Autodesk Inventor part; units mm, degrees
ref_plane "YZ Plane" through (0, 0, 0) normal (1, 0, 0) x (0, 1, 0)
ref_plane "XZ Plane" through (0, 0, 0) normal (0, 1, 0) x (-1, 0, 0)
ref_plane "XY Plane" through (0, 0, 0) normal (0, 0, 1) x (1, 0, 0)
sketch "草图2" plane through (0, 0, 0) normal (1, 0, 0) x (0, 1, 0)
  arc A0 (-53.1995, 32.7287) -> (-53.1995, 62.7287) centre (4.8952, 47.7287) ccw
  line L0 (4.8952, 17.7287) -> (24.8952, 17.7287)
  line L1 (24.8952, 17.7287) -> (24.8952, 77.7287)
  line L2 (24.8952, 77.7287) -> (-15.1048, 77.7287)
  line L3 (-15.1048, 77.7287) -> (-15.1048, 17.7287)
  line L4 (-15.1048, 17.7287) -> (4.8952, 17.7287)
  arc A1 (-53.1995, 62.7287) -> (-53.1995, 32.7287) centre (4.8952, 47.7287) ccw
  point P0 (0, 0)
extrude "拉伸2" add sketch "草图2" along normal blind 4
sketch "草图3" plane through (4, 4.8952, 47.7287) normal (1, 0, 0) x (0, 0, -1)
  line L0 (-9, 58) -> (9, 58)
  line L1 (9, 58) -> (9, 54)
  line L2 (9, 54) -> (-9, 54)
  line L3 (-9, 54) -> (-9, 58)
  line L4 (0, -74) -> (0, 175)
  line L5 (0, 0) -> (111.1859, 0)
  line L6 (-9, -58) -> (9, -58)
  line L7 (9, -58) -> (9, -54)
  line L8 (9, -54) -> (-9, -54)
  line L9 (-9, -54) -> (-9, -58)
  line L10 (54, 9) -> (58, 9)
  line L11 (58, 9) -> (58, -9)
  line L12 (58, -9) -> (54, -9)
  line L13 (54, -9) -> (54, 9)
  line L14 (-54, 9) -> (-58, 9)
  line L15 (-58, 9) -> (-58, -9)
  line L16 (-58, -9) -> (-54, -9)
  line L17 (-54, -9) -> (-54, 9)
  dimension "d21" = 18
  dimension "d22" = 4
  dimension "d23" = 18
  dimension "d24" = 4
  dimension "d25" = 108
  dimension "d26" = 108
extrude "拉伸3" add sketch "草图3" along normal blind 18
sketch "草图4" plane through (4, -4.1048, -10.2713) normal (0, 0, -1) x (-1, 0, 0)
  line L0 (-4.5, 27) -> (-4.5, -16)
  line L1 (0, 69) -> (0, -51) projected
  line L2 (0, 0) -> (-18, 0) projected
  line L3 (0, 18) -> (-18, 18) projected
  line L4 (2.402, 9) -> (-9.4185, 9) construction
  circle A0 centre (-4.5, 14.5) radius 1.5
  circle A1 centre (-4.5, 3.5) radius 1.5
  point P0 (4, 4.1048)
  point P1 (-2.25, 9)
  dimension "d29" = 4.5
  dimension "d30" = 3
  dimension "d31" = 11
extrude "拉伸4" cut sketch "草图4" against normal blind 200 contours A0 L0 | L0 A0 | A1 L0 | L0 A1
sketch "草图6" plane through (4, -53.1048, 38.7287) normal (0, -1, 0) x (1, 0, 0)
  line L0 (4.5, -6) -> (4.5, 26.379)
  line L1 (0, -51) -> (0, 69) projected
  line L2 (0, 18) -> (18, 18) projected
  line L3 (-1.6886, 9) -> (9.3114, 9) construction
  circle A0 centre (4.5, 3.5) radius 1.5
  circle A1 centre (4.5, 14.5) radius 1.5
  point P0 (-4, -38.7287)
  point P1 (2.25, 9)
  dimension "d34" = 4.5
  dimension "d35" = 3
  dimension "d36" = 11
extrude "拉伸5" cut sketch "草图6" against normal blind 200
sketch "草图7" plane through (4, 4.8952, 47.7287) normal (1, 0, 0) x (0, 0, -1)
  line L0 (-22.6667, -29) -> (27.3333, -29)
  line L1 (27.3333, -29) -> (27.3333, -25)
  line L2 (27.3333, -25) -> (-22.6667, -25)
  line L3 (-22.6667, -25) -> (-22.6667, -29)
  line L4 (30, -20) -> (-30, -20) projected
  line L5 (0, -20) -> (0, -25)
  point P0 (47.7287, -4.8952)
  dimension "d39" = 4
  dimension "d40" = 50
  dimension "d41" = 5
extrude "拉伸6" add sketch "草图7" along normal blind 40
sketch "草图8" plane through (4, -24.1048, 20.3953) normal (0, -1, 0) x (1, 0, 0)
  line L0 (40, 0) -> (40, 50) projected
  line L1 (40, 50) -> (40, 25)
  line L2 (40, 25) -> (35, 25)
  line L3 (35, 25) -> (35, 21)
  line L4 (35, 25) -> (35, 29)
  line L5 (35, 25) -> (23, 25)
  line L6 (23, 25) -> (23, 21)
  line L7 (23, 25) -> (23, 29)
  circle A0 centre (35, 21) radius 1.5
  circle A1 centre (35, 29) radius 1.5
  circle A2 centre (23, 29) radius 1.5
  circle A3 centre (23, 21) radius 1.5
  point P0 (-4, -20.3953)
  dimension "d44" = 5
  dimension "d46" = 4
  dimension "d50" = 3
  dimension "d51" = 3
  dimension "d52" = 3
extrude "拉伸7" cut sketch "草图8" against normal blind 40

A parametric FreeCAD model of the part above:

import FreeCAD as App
import Part
import Sketcher

V = App.Vector


def add_polygon(sketch, points):
    """Adds a closed chain of lines whose ends are joined by coincident constraints."""
    first, n = sketch.GeometryCount, len(points)
    for a, b in zip(points, points[1:] + points[:1]):
        sketch.addGeometry(Part.LineSegment(App.Vector(*a, 0), App.Vector(*b, 0)), False)
    for i in range(n):
        sketch.addConstraint(Sketcher.Constraint("Coincident", first + i, 2, first + (i + 1) % n, 1))

doc = App.newDocument("Part")
body = doc.addObject("PartDesign::Body", "Body")

# Sketch on YZ plane
sketch1 = body.newObject("Sketcher::SketchObject", "Sketch")
sketch1.AttachmentSupport = (doc.getObject("YZ_Plane"), [""])
sketch1.MapMode = "FlatFace"
sketch1.addGeometry(Part.Circle(V(5, 48, 0), V(0, 0, 1), 60), False)  # 0
add_polygon(sketch1, [(25, 18), (-15, 18), (-15, 78), (25, 78)])  # lines 1-4
sketch1.addConstraint([
    Sketcher.Constraint("Horizontal", 1),
    Sketcher.Constraint("Vertical", 2),
    Sketcher.Constraint("Horizontal", 3),
    Sketcher.Constraint("Vertical", 4),
    Sketcher.Constraint("Diameter", 0, 120.0),
    Sketcher.Constraint("DistanceX", 1, 2, 1, 1, 40.0),
    Sketcher.Constraint("DistanceY", 2, 1, 2, 2, 60.0),
    Sketcher.Constraint("DistanceX", 1, 2, 0, 3, 20.0),
    Sketcher.Constraint("DistanceY", 1, 2, 0, 3, 30.0),
    Sketcher.Constraint("DistanceX", -1, 1, 0, 3, 4.8952),
    Sketcher.Constraint("DistanceY", -1, 1, 0, 3, 47.7287),
])
pad1 = body.newObject("PartDesign::Pad", "Pad")
pad1.Profile = sketch1
pad1.Length = 4

# Sketch on YZ plane
sketch2 = body.newObject("Sketcher::SketchObject", "Sketch001")
sketch2.AttachmentSupport = (doc.getObject("YZ_Plane"), [""])
sketch2.MapMode = "FlatFace"
sketch2.AttachmentOffset = App.Placement(V(0, 0, 4), App.Rotation())
add_polygon(sketch2, [(13.9, -6.3), (-4.1, -6.3), (-4.1, -10.3), (13.9, -10.3)])  # lines 0-3
add_polygon(sketch2, [(-49.1, 38.7), (-49.1, 56.7), (-53.1, 56.7), (-53.1, 38.7)])  # lines 4-7
add_polygon(sketch2, [(62.9, 56.7), (58.9, 56.7), (58.9, 38.7), (62.9, 38.7)])  # lines 8-11
add_polygon(sketch2, [(-4.1, 101.7), (13.9, 101.7), (13.9, 105.7), (-4.1, 105.7)])  # lines 12-15
sketch2.addConstraint([
    Sketcher.Constraint("Horizontal", 0),
    Sketcher.Constraint("Vertical", 1),
    Sketcher.Constraint("Horizontal", 2),
    Sketcher.Constraint("Vertical", 3),
    Sketcher.Constraint("Vertical", 4),
    Sketcher.Constraint("Horizontal", 5),
    Sketcher.Constraint("Vertical", 6),
    Sketcher.Constraint("Horizontal", 7),
    Sketcher.Constraint("Horizontal", 8),
    Sketcher.Constraint("Vertical", 9),
    Sketcher.Constraint("Horizontal", 10),
    Sketcher.Constraint("Vertical", 11),
    Sketcher.Constraint("Horizontal", 12),
    Sketcher.Constraint("Vertical", 13),
    Sketcher.Constraint("Horizontal", 14),
    Sketcher.Constraint("Vertical", 15),
    Sketcher.Constraint("Horizontal", 5, 2, 8, 2),
    Sketcher.Constraint("Horizontal", 7, 2, 9, 2),
    Sketcher.Constraint("Vertical", 3, 2, 12, 2),
    Sketcher.Constraint("Vertical", 1, 2, 14, 2),
    Sketcher.Constraint("Equal", 7, 8),
    Sketcher.Constraint("Equal", 10, 1),
    Sketcher.Constraint("Equal", 14, 4),
    Sketcher.Constraint("Equal", 3, 13),
    Sketcher.Constraint("DistanceX", 0, 2, 0, 1, 18.0),
    Sketcher.Constraint("DistanceX", 5, 2, 5, 1, 4.0),
    Sketcher.Constraint("DistanceX", 4, 2, 8, 2, 108.0),
    Sketcher.Constraint("DistanceX", 4, 2, 0, 2, 45.0),
    Sketcher.Constraint("DistanceY", 0, 2, 4, 2, 63.0),
    Sketcher.Constraint("DistanceY", 8, 2, 12, 2, 45.0),
    Sketcher.Constraint("DistanceX", 0, 2, -1, 1, 4.1048),
    Sketcher.Constraint("DistanceY", 0, 2, -1, 1, 6.2713),
])
pad2 = body.newObject("PartDesign::Pad", "Pad001")
pad2.Profile = sketch2
pad2.Length = 18

# Sketch on XY plane
sketch3 = body.newObject("Sketcher::SketchObject", "Sketch002")
sketch3.AttachmentSupport = (doc.getObject("XY_Plane"), [""])
sketch3.MapMode = "FlatFace"
sketch3.AttachmentOffset = App.Placement(V(0, 0, -10.2713), App.Rotation())
sketch3.addGeometry([
    Part.Circle(V(8.5, 10.4, 0), V(0, 0, 1), 1.5),
    Part.Circle(V(8.5, -0.6, 0), V(0, 0, 1), 1.5),
], False)
sketch3.addConstraint([
    Sketcher.Constraint("Equal", 0, 1),
    Sketcher.Constraint("Vertical", 0, 3, 1, 3),
    Sketcher.Constraint("Diameter", 0, 3.0),
    Sketcher.Constraint("DistanceY", 1, 3, 0, 3, 11.0),
    Sketcher.Constraint("DistanceX", -1, 1, 0, 3, 8.5),
    Sketcher.Constraint("DistanceY", -1, 1, 0, 3, 10.3952),
])
pocket1 = body.newObject("PartDesign::Pocket", "Pocket")
pocket1.Profile = sketch3
pocket1.Length = 200
pocket1.Reversed = True

# Sketch on XZ plane
sketch4 = body.newObject("Sketcher::SketchObject", "Sketch003")
sketch4.AttachmentSupport = (doc.getObject("XZ_Plane"), [""])
sketch4.MapMode = "FlatFace"
sketch4.AttachmentOffset = App.Placement(V(0, 0, 53.1048), App.Rotation())
sketch4.addGeometry([
    Part.Circle(V(8.5, 42.2, 0), V(0, 0, 1), 1.5),
    Part.Circle(V(8.5, 53.2, 0), V(0, 0, 1), 1.5),
], False)
sketch4.addConstraint([
    Sketcher.Constraint("Equal", 0, 1),
    Sketcher.Constraint("Vertical", 0, 3, 1, 3),
    Sketcher.Constraint("Diameter", 0, 3.0),
    Sketcher.Constraint("DistanceY", 0, 3, 1, 3, 11.0),
    Sketcher.Constraint("DistanceX", -1, 1, 0, 3, 8.5),
    Sketcher.Constraint("DistanceY", -1, 1, 0, 3, 42.2287),
])
pocket2 = body.newObject("PartDesign::Pocket", "Pocket001")
pocket2.Profile = sketch4
pocket2.Length = 200

# Sketch on YZ plane
sketch5 = body.newObject("Sketcher::SketchObject", "Sketch004")
sketch5.AttachmentSupport = (doc.getObject("YZ_Plane"), [""])
sketch5.MapMode = "FlatFace"
sketch5.AttachmentOffset = App.Placement(V(0, 0, 4), App.Rotation())
add_polygon(sketch5, [(-20.1, 70.4), (-24.1, 70.4), (-24.1, 20.4), (-20.1, 20.4)])  # lines 0-3
sketch5.addConstraint([
    Sketcher.Constraint("Horizontal", 0),
    Sketcher.Constraint("Vertical", 1),
    Sketcher.Constraint("Horizontal", 2),
    Sketcher.Constraint("Vertical", 3),
    Sketcher.Constraint("DistanceX", 0, 2, 0, 1, 4.0),
    Sketcher.Constraint("DistanceY", 1, 2, 1, 1, 50.0),
    Sketcher.Constraint("DistanceX", 0, 2, -1, 1, 24.1048),
    Sketcher.Constraint("DistanceY", -1, 1, 0, 2, 70.3954),
])
pad3 = body.newObject("PartDesign::Pad", "Pad002")
pad3.Profile = sketch5
pad3.Length = 40

# Sketch on XZ plane
sketch6 = body.newObject("Sketcher::SketchObject", "Sketch005")
sketch6.AttachmentSupport = (doc.getObject("XZ_Plane"), [""])
sketch6.MapMode = "FlatFace"
sketch6.AttachmentOffset = App.Placement(V(0, 0, 24.1048), App.Rotation())
sketch6.addGeometry([
    Part.Circle(V(39, 41.4, 0), V(0, 0, 1), 1.5),
    Part.Circle(V(39, 49.4, 0), V(0, 0, 1), 1.5),
    Part.Circle(V(27, 41.4, 0), V(0, 0, 1), 1.5),
    Part.Circle(V(27, 49.4, 0), V(0, 0, 1), 1.5),
], False)
sketch6.addConstraint([
    Sketcher.Constraint("Equal", 0, 1),
    Sketcher.Constraint("Equal", 1, 2),
    Sketcher.Constraint("Equal", 2, 3),
    Sketcher.Constraint("Horizontal", 0, 3, 2, 3),
    Sketcher.Constraint("Horizontal", 1, 3, 3, 3),
    Sketcher.Constraint("Vertical", 0, 3, 1, 3),
    Sketcher.Constraint("Vertical", 2, 3, 3, 3),
    Sketcher.Constraint("Diameter", 0, 3.0),
    Sketcher.Constraint("DistanceX", -1, 1, 0, 3, 39.0),
    Sketcher.Constraint("DistanceX", -1, 1, 2, 3, 27.0),
    Sketcher.Constraint("DistanceY", 0, 3, 1, 3, 8.0),
    Sketcher.Constraint("DistanceY", -1, 1, 0, 3, 41.3953),
])
pocket3 = body.newObject("PartDesign::Pocket", "Pocket002")
pocket3.Profile = sketch6
pocket3.Length = 40

doc.recompute()
